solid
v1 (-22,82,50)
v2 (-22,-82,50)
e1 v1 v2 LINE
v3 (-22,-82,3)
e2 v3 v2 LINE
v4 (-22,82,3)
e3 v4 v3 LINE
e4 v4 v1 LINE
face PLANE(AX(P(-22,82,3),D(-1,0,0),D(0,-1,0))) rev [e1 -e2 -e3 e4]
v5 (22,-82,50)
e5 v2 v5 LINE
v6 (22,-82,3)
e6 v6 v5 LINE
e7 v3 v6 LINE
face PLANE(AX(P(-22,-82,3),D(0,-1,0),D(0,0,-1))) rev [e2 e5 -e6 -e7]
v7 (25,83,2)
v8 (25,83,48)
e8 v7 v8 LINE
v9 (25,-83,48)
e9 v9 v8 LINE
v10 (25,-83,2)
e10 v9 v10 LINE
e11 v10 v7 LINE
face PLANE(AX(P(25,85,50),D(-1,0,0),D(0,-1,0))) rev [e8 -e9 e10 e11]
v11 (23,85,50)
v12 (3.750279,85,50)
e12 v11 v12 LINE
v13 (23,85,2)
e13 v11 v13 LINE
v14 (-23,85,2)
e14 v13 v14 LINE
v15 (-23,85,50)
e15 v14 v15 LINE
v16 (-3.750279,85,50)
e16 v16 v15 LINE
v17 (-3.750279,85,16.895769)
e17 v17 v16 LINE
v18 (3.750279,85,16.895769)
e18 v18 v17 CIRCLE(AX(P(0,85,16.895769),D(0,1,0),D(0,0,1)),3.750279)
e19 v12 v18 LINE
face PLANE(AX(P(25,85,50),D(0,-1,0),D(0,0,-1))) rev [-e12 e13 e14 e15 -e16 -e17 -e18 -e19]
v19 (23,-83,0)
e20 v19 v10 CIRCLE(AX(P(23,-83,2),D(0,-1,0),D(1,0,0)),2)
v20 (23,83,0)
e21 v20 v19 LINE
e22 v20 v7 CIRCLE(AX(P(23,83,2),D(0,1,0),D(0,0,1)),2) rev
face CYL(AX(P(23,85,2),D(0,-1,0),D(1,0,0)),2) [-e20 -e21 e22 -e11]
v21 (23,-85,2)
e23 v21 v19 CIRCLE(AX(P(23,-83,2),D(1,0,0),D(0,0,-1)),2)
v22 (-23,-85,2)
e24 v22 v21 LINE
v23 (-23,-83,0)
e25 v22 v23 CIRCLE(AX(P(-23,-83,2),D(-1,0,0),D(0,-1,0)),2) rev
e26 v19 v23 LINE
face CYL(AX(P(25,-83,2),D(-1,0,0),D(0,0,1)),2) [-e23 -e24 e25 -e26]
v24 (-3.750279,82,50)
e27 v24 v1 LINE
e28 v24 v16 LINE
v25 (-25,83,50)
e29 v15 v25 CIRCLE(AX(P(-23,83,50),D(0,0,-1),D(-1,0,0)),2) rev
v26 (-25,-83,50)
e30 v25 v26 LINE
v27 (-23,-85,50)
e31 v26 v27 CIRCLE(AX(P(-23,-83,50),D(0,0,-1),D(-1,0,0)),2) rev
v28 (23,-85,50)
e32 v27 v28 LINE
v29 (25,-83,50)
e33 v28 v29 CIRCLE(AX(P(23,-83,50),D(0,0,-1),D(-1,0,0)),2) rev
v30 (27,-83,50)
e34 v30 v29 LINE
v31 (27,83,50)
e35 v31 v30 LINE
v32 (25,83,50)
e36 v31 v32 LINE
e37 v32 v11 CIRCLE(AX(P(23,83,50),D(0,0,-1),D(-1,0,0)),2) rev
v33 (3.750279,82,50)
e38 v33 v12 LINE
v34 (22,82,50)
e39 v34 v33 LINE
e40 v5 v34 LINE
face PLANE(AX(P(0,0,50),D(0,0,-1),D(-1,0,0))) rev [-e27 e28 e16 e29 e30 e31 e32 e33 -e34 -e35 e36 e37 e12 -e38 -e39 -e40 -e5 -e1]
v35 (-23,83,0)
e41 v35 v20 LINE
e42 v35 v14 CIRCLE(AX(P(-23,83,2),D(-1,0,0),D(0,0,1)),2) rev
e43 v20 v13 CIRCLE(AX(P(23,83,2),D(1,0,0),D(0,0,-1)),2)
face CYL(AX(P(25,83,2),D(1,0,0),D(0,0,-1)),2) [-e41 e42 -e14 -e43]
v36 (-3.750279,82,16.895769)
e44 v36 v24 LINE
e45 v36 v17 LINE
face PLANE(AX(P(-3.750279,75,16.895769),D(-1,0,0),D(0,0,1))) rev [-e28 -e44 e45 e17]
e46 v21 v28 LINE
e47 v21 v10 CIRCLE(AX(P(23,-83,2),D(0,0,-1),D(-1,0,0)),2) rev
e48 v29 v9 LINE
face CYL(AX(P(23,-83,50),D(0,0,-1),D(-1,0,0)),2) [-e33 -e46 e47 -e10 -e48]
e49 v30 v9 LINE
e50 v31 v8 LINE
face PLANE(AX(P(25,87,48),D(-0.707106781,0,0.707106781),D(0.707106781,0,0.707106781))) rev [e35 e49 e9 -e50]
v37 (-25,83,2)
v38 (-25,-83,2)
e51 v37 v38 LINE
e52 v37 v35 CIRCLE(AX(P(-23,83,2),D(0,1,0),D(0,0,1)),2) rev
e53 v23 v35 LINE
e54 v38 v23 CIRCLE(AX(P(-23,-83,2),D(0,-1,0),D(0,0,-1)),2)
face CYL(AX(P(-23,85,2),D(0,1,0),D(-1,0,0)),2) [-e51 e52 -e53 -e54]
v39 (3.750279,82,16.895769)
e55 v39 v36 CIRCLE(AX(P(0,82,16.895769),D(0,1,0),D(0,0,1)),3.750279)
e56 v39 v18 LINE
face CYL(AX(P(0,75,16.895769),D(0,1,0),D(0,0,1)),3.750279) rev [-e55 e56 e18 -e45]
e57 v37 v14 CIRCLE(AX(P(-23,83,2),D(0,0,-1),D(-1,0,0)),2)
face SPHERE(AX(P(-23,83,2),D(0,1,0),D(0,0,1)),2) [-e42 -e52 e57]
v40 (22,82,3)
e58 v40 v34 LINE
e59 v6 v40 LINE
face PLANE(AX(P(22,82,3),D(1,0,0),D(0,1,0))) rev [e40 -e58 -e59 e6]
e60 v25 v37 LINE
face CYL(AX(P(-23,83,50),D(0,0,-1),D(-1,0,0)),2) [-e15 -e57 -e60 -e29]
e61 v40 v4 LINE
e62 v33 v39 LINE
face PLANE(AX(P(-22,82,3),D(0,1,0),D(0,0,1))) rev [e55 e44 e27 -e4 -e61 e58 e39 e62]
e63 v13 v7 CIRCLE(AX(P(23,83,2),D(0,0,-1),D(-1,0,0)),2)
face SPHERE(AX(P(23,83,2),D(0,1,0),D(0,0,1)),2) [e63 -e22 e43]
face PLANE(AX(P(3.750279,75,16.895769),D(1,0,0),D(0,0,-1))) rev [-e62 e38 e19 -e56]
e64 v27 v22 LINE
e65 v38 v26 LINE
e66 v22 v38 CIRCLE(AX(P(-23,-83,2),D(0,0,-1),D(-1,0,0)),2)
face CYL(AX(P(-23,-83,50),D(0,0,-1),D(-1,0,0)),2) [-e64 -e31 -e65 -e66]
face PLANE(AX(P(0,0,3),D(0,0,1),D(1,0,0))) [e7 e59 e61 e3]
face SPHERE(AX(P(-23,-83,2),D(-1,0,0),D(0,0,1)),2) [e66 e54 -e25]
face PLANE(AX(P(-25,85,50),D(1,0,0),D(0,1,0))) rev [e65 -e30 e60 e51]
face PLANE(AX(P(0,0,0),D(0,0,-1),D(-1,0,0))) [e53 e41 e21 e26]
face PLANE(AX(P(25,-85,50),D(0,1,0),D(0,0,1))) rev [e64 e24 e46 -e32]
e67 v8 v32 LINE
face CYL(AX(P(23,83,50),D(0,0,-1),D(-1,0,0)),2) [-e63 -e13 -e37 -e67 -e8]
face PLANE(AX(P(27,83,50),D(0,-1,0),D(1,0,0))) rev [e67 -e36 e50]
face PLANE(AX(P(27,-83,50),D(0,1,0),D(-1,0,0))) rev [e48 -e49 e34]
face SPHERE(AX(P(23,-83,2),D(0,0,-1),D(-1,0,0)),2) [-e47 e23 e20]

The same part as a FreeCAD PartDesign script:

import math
import FreeCAD as App
import Part
import Sketcher
from FreeCAD import Vector


def edges_at(feature, points):
    """Names of the edges that pass closest to the given points."""
    edges = feature.Shape.Edges
    near = lambda p: min(range(len(edges)), key=lambda i: edges[i].distToShape(Part.Vertex(*p))[0])
    return sorted({f"Edge{near(p) + 1}" for p in points})

doc = App.newDocument("Part")
body = doc.addObject("PartDesign::Body", "Body")

# Sketch on XY plane
sketch1 = body.newObject("Sketcher::SketchObject", "Sketch")
sketch1.AttachmentSupport = (doc.getObject("XY_Plane"), [""])
sketch1.MapMode = "FlatFace"
sketch1.addGeometry([
    Part.LineSegment(Vector(-25, 85, 0), Vector(-25, -85, 0)),
    Part.LineSegment(Vector(-25, -85, 0), Vector(25, -85, 0)),
    Part.LineSegment(Vector(25, -85, 0), Vector(25, 85, 0)),
    Part.LineSegment(Vector(25, 85, 0), Vector(-25, 85, 0)),
], False)
sketch1.addConstraint([
    Sketcher.Constraint("Coincident", 0, 2, 1, 1),
    Sketcher.Constraint("Coincident", 1, 2, 2, 1),
    Sketcher.Constraint("Coincident", 2, 2, 3, 1),
    Sketcher.Constraint("Coincident", 3, 2, 0, 1),
    Sketcher.Constraint("Vertical", 0),
    Sketcher.Constraint("Horizontal", 1),
    Sketcher.Constraint("Vertical", 2),
    Sketcher.Constraint("Horizontal", 3),
    Sketcher.Constraint("Symmetric", 0, 2, 2, 2, -1, 1),
    Sketcher.Constraint("DistanceX", 1, 1, 1, 2, 50.0),
    Sketcher.Constraint("DistanceY", 0, 2, 0, 1, 170.0),
])
pad1 = body.newObject("PartDesign::Pad", "Pad")
pad1.Profile = sketch1
pad1.Length = 50

# Sketch on XY plane
sketch2 = body.newObject("Sketcher::SketchObject", "Sketch001")
sketch2.AttachmentSupport = (doc.getObject("XY_Plane"), [""])
sketch2.MapMode = "FlatFace"
sketch2.AttachmentOffset = App.Placement(Vector(0, 0, 50), App.Rotation())
sketch2.addGeometry([
    Part.LineSegment(Vector(-22, 82, 0), Vector(-22, -82, 0)),
    Part.LineSegment(Vector(-22, -82, 0), Vector(22, -82, 0)),
    Part.LineSegment(Vector(22, -82, 0), Vector(22, 82, 0)),
    Part.LineSegment(Vector(22, 82, 0), Vector(-22, 82, 0)),
], False)
sketch2.addConstraint([
    Sketcher.Constraint("Coincident", 0, 2, 1, 1),
    Sketcher.Constraint("Coincident", 1, 2, 2, 1),
    Sketcher.Constraint("Coincident", 2, 2, 3, 1),
    Sketcher.Constraint("Coincident", 3, 2, 0, 1),
    Sketcher.Constraint("Vertical", 0),
    Sketcher.Constraint("Horizontal", 1),
    Sketcher.Constraint("Vertical", 2),
    Sketcher.Constraint("Horizontal", 3),
    Sketcher.Constraint("Symmetric", 0, 2, 2, 2, -1, 1),
    Sketcher.Constraint("DistanceX", 1, 1, 1, 2, 44.0),
    Sketcher.Constraint("DistanceY", 0, 2, 0, 1, 164.0),
])
pocket1 = body.newObject("PartDesign::Pocket", "Pocket")
pocket1.Profile = sketch2
pocket1.Length = 47
doc.recompute()

fillet = body.newObject("PartDesign::Fillet", "Fillet")
fillet.Base = (pocket1, edges_at(pocket1, [
    (0, 85, 0),
    (25, 0, 0),
    (0, -85, 0),
    (-25, 0, 0),
    (-25, 85, 25),
    (25, 85, 25),
    (25, -85, 25),
    (-25, -85, 25),
]))
fillet.Radius = 2

# Sketch on YZ plane
sketch3 = body.newObject("Sketcher::SketchObject", "Sketch002")
sketch3.AttachmentSupport = (doc.getObject("YZ_Plane"), [""])
sketch3.MapMode = "FlatFace"
sketch3.AttachmentOffset = App.Placement(Vector(0, 0, 25), App.Rotation())
sketch3.addGeometry([
    Part.LineSegment(Vector(83, 50, 0), Vector(-83, 50, 0)),
    Part.LineSegment(Vector(-83, 50, 0), Vector(-83, 48, 0)),
    Part.LineSegment(Vector(-83, 48, 0), Vector(83, 48, 0)),
    Part.LineSegment(Vector(83, 48, 0), Vector(83, 50, 0)),
], False)
sketch3.addConstraint([
    Sketcher.Constraint("Coincident", 0, 2, 1, 1),
    Sketcher.Constraint("Coincident", 1, 2, 2, 1),
    Sketcher.Constraint("Coincident", 2, 2, 3, 1),
    Sketcher.Constraint("Coincident", 3, 2, 0, 1),
    Sketcher.Constraint("Horizontal", 0),
    Sketcher.Constraint("Vertical", 1),
    Sketcher.Constraint("Horizontal", 2),
    Sketcher.Constraint("Vertical", 3),
    Sketcher.Constraint("DistanceX", 0, 2, 0, 1, 166.0),
    Sketcher.Constraint("DistanceY", 1, 2, 1, 1, 2.0),
    Sketcher.Constraint("DistanceX", 0, 2, -1, 1, 83.0),
    Sketcher.Constraint("DistanceY", -1, 1, 0, 2, 50.0),
])
pad2 = body.newObject("PartDesign::Pad", "Pad001")
pad2.Profile = sketch3
pad2.Length = 2

# Sketch on XZ plane
sketch4 = body.newObject("Sketcher::SketchObject", "Sketch003")
sketch4.AttachmentSupport = (doc.getObject("XZ_Plane"), [""])
sketch4.MapMode = "FlatFace"
sketch4.AttachmentOffset = App.Placement(Vector(0, 0, 83), App.Rotation())
sketch4.addGeometry([
    Part.LineSegment(Vector(27, 50, 0), Vector(25, 48, 0)),
    Part.LineSegment(Vector(25, 48, 0), Vector(27, 48, 0)),
    Part.LineSegment(Vector(27, 48, 0), Vector(27, 50, 0)),
], False)
sketch4.addConstraint([
    Sketcher.Constraint("Coincident", 0, 2, 1, 1),
    Sketcher.Constraint("Coincident", 1, 2, 2, 1),
    Sketcher.Constraint("Coincident", 2, 2, 0, 1),
    Sketcher.Constraint("Horizontal", 1),
    Sketcher.Constraint("Vertical", 2),
    Sketcher.Constraint("Equal", 1, 2),
    Sketcher.Constraint("DistanceX", 1, 1, 1, 2, 2.0),
    Sketcher.Constraint("DistanceX", -1, 1, 0, 2, 25.0),
    Sketcher.Constraint("DistanceY", -1, 1, 0, 2, 48.0),
])
pocket2 = body.newObject("PartDesign::Pocket", "Pocket001")
pocket2.Profile = sketch4
pocket2.Length = 170

# Sketch on XZ plane
sketch5 = body.newObject("Sketcher::SketchObject", "Sketch004")
sketch5.AttachmentSupport = (doc.getObject("XZ_Plane"), [""])
sketch5.MapMode = "FlatFace"
sketch5.AttachmentOffset = App.Placement(Vector(0, 0, -85), App.Rotation())
sketch5.addGeometry([
    Part.LineSegment(Vector(3.750279, 50, 0), Vector(3.750279, 16.895769, 0)),
    Part.ArcOfCircle(Part.Circle(Vector(0, 16.895769, 0), Vector(0, 0, 1), 3.750279), math.radians(180), math.radians(360)),
    Part.LineSegment(Vector(-3.750279, 16.895769, 0), Vector(-3.750279, 50, 0)),
    Part.ArcOfCircle(Part.Circle(Vector(0, 50, 0), Vector(0, 0, 1), 3.750279), math.radians(0), math.radians(180)),
], False)
sketch5.addConstraint([
    Sketcher.Constraint("Tangent", 0, 2, 1, 2),
    Sketcher.Constraint("Tangent", 1, 1, 2, 1),
    Sketcher.Constraint("Tangent", 2, 2, 3, 2),
    Sketcher.Constraint("Tangent", 3, 1, 0, 1),
    Sketcher.Constraint("Vertical", 0),
    Sketcher.Constraint("Vertical", 2),
    Sketcher.Constraint("PointOnObject", 1, 3, -2),
    Sketcher.Constraint("DistanceY", -1, 1, 3, 3, 50.0),
    Sketcher.Constraint("Radius", 1, 3.750279),
    Sketcher.Constraint("DistanceY", 0, 2, 0, 1, 33.104231),
])
pocket3 = body.newObject("PartDesign::Pocket", "Pocket002")
pocket3.Profile = sketch5
pocket3.Length = 10
pocket3.Reversed = True

doc.recompute()
